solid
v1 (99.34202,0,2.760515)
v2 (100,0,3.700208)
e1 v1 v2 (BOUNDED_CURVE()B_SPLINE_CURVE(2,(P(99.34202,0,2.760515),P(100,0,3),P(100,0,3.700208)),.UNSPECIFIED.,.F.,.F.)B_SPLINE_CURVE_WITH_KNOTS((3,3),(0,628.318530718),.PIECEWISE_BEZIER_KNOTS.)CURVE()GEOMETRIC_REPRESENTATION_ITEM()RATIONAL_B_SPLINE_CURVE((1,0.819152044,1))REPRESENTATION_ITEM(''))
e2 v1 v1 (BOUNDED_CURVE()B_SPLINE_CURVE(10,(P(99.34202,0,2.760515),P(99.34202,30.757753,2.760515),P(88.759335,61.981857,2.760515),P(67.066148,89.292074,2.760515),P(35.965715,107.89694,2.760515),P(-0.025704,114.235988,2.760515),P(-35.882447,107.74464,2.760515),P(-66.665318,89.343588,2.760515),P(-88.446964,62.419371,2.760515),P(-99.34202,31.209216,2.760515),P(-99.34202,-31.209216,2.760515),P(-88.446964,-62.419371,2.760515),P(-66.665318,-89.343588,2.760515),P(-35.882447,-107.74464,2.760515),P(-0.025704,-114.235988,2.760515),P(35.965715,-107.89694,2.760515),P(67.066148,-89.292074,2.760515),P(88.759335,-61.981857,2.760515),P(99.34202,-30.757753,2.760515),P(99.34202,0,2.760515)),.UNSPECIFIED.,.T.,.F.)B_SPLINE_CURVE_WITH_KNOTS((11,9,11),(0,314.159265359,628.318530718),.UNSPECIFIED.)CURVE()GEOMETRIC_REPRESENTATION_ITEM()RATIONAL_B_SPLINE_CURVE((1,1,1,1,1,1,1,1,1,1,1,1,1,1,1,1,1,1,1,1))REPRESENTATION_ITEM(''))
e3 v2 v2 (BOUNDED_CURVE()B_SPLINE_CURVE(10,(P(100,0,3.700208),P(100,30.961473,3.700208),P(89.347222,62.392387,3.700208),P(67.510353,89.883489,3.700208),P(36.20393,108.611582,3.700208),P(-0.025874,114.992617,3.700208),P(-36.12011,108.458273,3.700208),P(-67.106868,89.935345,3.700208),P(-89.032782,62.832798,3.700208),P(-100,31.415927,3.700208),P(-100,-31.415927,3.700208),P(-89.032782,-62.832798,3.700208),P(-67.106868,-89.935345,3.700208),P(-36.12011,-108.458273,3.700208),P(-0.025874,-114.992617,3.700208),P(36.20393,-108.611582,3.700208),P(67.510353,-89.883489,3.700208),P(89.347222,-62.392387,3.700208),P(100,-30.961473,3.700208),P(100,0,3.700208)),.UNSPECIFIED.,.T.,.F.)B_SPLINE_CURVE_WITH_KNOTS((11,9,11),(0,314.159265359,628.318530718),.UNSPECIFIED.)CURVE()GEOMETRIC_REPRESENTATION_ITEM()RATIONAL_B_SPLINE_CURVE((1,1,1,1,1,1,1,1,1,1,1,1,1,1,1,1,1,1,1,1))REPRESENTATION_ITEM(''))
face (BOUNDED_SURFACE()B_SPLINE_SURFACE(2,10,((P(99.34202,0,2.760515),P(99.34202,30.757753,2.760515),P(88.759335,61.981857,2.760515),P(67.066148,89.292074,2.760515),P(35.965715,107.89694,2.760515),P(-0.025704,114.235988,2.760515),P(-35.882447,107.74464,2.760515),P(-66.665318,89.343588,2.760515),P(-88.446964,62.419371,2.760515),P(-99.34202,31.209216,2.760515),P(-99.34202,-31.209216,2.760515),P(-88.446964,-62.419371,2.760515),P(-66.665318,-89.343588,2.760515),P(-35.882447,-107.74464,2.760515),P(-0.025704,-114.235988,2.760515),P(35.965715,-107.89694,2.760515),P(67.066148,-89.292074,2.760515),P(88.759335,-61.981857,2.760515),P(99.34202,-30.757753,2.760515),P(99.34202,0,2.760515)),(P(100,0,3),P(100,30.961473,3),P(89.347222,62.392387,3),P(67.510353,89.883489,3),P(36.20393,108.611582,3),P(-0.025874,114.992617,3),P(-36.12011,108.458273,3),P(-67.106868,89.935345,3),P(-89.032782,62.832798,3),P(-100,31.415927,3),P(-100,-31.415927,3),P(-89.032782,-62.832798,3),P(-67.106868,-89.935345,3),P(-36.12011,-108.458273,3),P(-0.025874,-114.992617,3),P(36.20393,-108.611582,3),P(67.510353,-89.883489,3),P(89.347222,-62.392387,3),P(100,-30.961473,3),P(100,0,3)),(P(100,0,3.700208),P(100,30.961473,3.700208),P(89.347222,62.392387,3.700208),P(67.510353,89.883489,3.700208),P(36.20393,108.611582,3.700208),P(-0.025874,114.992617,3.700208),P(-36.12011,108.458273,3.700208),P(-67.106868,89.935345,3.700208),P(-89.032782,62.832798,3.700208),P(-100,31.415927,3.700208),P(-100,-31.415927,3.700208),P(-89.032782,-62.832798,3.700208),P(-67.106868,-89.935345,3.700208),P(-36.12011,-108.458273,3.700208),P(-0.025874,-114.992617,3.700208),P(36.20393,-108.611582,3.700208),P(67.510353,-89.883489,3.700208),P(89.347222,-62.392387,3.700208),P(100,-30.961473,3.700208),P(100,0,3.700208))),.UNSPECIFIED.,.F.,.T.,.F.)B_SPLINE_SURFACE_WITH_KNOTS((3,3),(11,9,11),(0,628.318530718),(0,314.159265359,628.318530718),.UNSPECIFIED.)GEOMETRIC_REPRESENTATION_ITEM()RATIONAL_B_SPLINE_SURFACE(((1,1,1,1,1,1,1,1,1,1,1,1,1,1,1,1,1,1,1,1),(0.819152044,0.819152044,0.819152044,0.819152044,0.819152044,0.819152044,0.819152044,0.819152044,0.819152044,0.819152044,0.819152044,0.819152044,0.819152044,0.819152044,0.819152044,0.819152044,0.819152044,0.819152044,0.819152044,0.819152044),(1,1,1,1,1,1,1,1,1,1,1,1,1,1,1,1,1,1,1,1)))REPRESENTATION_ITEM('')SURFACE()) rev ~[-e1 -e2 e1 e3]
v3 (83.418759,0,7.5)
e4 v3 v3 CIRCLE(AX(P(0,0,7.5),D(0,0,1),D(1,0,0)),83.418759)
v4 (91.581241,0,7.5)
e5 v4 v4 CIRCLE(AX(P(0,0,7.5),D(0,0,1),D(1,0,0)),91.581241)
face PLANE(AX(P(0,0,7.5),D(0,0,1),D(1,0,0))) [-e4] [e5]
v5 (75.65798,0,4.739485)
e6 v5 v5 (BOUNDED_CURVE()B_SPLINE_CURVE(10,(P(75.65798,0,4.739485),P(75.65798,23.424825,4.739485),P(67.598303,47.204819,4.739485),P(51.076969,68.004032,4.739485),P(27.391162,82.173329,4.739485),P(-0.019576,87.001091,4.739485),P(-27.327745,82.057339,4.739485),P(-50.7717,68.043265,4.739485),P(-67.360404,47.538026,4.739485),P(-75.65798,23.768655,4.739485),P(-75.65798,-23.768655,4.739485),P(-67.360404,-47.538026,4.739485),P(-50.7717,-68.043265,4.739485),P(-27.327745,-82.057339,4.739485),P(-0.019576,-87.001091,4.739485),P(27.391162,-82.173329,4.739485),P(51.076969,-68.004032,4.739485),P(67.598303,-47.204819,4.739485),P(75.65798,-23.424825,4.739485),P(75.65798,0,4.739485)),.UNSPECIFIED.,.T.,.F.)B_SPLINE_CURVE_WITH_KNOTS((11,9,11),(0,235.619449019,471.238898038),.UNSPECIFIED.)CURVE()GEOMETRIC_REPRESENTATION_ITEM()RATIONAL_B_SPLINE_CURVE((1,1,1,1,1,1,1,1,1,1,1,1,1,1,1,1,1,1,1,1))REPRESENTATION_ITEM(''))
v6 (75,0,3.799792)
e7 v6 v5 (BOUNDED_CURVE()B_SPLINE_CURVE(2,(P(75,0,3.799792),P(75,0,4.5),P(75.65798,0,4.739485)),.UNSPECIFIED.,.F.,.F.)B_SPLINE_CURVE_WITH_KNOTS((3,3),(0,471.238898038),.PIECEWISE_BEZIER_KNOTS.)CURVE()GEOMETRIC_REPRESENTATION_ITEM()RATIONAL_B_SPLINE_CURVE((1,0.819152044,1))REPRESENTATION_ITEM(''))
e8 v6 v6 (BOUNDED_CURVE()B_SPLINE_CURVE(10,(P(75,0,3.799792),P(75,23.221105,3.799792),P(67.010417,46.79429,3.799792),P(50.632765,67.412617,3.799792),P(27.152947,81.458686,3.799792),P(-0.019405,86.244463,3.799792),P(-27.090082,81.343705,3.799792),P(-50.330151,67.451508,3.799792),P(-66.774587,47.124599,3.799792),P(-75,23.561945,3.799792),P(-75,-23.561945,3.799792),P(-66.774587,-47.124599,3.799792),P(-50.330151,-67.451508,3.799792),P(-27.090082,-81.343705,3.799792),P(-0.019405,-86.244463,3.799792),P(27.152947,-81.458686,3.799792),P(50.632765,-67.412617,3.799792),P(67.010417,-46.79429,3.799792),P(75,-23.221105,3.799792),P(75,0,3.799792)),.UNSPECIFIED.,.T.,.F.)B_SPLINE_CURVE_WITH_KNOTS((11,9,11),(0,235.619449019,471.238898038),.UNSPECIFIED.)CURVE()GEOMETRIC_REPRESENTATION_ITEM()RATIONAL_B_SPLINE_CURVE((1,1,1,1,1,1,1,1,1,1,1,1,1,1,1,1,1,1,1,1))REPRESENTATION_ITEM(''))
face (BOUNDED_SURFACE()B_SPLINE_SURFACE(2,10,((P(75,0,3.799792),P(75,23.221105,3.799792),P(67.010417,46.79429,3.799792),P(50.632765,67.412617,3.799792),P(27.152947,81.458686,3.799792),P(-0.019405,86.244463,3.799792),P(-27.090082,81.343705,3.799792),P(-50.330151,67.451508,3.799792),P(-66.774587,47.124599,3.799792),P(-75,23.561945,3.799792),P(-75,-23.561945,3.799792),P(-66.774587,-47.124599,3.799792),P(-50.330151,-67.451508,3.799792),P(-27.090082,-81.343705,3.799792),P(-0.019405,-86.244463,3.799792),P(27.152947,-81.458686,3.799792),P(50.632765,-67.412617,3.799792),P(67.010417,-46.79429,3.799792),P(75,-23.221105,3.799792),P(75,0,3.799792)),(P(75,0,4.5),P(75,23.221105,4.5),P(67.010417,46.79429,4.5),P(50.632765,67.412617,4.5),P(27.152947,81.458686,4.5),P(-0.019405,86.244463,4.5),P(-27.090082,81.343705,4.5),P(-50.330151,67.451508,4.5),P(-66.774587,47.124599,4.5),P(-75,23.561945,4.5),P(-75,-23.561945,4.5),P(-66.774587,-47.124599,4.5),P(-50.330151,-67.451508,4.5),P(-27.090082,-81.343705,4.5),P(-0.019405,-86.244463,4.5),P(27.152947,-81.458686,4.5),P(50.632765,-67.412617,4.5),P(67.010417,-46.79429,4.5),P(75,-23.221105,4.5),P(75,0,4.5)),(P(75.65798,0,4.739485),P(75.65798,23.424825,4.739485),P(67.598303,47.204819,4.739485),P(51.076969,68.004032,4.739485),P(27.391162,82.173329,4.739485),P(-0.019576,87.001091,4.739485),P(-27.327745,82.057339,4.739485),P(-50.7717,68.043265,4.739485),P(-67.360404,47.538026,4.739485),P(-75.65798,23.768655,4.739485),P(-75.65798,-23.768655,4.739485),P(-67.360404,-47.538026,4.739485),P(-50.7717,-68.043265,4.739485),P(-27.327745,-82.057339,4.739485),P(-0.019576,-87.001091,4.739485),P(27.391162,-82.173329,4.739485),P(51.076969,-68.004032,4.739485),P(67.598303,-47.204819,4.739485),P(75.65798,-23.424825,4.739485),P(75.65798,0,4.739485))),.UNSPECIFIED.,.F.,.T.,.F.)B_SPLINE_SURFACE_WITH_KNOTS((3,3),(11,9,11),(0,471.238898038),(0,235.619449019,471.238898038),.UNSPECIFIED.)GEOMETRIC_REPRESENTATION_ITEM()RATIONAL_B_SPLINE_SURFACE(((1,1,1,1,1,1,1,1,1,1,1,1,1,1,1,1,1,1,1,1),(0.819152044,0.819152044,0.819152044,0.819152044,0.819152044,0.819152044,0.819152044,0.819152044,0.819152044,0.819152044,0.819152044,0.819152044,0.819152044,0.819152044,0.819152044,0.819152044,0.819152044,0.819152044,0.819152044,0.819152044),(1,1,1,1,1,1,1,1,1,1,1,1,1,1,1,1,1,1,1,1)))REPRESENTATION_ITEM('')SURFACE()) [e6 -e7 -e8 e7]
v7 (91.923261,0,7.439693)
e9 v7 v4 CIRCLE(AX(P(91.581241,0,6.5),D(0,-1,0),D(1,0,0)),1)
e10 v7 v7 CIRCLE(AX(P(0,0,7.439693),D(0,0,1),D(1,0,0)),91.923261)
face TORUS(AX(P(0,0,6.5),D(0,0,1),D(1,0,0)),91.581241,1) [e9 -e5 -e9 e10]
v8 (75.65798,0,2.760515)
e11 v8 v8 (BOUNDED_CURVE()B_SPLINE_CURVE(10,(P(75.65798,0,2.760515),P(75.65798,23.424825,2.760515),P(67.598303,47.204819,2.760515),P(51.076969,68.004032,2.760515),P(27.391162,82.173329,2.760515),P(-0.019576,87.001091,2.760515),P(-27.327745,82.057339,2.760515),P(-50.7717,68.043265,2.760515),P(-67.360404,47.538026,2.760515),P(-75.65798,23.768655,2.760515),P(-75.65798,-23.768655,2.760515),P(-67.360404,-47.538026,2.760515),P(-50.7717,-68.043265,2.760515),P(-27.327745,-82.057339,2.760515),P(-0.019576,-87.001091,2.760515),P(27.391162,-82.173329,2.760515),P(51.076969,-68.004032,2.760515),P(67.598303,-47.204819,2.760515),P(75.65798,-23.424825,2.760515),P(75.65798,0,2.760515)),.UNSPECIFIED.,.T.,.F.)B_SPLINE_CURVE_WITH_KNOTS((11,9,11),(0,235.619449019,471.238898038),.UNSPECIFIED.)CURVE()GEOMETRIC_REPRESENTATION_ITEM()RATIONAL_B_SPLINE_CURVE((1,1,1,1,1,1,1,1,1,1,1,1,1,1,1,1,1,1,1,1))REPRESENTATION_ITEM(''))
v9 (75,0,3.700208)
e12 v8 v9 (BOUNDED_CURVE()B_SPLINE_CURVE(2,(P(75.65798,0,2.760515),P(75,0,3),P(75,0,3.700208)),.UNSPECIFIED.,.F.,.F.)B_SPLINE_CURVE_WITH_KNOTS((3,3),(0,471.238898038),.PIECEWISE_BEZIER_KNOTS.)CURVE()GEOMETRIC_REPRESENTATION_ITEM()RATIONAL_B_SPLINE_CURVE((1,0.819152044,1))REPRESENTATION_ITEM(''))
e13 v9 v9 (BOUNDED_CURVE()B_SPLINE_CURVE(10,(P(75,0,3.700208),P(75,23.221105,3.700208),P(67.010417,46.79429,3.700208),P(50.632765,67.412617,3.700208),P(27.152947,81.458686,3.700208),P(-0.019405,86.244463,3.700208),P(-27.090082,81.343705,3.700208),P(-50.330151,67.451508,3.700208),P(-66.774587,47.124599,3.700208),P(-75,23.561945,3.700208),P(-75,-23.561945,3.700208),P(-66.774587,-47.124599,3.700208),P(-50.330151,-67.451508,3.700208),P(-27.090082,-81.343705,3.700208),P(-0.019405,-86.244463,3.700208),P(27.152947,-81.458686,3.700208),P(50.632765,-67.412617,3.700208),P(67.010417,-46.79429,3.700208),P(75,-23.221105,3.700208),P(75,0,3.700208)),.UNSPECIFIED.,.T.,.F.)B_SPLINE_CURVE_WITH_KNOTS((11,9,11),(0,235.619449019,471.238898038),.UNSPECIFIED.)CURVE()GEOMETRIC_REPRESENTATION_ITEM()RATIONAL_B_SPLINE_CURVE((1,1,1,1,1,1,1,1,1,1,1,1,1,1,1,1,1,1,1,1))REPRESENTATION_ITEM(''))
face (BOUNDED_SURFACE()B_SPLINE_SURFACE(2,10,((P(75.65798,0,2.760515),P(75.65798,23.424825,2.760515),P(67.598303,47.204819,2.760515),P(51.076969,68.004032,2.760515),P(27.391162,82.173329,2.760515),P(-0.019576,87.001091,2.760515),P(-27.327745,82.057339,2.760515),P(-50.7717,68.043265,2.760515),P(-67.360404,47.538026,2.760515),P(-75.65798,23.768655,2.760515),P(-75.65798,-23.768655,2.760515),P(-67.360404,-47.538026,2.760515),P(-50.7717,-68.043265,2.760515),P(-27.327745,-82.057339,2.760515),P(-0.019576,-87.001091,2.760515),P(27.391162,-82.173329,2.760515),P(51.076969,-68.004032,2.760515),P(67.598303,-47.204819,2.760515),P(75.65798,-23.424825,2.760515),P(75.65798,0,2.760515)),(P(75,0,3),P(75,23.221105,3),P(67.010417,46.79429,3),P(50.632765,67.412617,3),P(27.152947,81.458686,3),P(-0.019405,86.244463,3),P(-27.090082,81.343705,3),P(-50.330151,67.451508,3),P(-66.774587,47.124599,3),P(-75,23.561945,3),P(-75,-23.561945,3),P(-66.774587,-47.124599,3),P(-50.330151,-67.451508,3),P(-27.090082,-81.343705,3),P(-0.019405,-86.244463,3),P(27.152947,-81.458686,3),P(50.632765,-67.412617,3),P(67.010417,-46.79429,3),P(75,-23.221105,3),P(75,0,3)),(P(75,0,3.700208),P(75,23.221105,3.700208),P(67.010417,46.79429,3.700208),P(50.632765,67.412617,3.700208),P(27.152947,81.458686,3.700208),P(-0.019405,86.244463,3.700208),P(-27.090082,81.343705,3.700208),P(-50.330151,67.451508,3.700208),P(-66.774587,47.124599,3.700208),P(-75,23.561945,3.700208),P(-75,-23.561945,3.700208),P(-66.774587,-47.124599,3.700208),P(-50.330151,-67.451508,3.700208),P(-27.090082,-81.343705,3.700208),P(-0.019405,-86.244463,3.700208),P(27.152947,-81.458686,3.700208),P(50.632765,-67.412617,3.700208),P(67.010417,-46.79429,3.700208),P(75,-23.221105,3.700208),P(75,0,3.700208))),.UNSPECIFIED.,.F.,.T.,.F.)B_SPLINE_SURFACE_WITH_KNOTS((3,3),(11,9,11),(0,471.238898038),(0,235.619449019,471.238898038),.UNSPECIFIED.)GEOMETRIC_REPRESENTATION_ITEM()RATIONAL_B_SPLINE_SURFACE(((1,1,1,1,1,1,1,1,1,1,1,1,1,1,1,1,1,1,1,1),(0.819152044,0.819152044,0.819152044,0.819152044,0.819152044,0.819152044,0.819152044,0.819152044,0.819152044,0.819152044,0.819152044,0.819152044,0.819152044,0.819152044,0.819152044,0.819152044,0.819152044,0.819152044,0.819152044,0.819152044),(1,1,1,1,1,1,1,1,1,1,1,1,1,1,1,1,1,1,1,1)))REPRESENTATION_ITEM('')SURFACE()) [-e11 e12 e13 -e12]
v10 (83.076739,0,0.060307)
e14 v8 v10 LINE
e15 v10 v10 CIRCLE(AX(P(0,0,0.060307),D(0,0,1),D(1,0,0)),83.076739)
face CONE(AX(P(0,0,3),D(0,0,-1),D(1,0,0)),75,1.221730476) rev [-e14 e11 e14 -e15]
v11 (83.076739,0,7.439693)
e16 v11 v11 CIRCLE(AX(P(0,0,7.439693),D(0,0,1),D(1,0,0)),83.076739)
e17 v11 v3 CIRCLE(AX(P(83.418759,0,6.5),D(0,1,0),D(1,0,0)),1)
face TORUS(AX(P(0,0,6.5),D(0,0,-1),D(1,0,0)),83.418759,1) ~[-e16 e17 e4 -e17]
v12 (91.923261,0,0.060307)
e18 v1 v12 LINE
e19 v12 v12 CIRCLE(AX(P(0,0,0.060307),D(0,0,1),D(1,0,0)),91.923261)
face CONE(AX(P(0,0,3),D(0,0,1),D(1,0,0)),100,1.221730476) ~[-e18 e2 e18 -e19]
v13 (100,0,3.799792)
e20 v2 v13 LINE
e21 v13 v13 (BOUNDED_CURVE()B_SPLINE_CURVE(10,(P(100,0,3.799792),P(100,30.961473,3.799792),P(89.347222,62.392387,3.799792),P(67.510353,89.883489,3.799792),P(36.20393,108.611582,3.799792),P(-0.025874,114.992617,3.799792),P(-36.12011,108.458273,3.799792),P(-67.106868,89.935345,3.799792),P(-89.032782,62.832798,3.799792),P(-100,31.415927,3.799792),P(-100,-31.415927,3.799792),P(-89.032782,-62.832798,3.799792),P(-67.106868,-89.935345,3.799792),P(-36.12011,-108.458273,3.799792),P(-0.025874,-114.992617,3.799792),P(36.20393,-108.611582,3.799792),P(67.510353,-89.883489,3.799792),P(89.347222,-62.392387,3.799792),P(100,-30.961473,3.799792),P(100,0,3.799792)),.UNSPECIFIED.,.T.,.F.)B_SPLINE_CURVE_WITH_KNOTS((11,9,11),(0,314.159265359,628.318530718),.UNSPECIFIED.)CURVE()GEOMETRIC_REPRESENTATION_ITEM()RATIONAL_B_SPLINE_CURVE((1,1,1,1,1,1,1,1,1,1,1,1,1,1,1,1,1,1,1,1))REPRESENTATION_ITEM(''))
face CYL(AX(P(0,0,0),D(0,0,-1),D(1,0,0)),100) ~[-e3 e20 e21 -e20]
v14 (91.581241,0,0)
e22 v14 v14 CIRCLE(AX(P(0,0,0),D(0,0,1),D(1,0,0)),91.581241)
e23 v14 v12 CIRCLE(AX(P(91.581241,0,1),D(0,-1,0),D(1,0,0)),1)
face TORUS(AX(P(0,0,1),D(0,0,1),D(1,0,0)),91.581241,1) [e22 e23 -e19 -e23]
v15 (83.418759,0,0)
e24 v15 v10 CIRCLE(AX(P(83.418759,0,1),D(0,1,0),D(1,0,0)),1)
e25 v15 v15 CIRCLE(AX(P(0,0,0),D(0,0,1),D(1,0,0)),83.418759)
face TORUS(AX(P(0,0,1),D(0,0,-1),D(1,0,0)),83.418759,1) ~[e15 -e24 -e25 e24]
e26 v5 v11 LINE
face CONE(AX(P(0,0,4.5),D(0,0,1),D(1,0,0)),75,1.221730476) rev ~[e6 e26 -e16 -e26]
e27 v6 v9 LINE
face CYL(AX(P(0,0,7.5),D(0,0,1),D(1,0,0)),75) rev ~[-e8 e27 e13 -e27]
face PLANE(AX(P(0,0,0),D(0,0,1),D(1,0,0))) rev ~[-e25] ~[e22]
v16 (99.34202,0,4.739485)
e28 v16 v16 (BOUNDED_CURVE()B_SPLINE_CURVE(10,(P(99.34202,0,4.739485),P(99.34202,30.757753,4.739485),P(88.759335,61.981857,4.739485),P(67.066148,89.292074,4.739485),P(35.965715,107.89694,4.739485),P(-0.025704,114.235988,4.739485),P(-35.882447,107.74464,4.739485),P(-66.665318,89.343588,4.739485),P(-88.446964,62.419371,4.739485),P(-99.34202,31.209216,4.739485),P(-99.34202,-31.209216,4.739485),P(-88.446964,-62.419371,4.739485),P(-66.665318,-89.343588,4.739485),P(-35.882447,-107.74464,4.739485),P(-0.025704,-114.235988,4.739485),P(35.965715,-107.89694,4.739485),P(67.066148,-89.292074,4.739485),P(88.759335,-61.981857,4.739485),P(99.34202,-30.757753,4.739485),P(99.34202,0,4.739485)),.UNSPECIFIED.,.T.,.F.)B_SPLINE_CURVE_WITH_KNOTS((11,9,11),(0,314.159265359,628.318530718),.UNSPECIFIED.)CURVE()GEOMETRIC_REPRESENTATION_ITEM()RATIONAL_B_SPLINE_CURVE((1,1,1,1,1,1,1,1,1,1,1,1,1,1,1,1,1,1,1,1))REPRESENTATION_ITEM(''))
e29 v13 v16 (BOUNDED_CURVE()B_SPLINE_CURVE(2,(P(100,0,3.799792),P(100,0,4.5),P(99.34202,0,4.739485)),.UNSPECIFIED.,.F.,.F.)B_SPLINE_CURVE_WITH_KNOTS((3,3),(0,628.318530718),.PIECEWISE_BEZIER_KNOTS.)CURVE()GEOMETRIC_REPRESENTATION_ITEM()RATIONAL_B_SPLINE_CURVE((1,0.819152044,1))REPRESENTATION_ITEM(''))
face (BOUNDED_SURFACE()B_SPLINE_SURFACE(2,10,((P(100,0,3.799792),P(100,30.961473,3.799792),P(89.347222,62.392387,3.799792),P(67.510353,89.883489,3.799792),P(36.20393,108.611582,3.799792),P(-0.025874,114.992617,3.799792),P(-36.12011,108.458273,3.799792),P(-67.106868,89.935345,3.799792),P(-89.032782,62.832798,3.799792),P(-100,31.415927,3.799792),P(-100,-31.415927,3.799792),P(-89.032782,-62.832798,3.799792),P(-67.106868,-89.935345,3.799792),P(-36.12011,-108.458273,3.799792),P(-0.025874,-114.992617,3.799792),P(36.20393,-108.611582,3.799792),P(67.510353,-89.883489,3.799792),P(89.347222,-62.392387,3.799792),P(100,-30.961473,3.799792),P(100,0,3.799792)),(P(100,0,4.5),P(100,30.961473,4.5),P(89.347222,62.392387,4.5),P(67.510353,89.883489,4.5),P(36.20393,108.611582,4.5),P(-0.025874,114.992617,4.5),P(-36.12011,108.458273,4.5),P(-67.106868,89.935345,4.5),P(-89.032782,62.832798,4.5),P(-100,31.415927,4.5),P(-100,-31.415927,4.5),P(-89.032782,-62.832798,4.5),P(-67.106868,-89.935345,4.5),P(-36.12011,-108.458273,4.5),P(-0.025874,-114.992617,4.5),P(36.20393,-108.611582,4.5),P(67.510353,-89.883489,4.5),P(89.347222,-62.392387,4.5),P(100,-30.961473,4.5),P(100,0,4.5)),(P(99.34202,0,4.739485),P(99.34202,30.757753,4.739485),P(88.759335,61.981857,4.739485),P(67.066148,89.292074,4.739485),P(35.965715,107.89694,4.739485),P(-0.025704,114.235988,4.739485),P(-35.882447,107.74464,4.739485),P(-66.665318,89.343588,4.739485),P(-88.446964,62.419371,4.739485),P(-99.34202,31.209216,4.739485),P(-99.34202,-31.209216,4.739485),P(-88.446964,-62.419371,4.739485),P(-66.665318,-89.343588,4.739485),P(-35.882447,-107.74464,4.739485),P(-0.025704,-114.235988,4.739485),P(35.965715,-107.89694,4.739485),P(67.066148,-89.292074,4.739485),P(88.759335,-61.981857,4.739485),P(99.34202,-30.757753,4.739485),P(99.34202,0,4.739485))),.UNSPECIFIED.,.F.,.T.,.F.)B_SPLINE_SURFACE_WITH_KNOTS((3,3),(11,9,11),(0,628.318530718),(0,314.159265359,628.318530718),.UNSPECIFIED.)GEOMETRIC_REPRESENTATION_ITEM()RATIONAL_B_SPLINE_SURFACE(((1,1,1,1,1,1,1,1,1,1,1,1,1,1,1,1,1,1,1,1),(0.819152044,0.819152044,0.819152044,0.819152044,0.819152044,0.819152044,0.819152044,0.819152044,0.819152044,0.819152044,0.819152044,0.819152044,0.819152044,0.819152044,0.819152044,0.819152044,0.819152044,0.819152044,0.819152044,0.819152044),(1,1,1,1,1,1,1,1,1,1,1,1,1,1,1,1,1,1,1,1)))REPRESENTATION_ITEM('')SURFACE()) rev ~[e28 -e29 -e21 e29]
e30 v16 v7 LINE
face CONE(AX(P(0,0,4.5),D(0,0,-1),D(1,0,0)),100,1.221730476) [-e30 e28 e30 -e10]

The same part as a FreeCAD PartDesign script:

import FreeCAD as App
import Part
import Sketcher

V = App.Vector
Q = App.Units.Quantity


def edges_at(feature, points):
    """Names of the edges that pass closest to the given points."""
    edges = feature.Shape.Edges
    near = lambda p: min(range(len(edges)), key=lambda i: edges[i].distToShape(Part.Vertex(*p))[0])
    return sorted({f"Edge{near(p) + 1}" for p in points})

doc = App.newDocument("Part")
params = doc.addObject("Spreadsheet::Sheet", "Params")
for row, (alias, value) in enumerate([
    ("sketch1_diameter", "200 mm"),
    ("pad1_length", "7.5 mm"),
    ("sketch2_diameter", "150 mm"),
    ("pocket1_length", "25 mm"),
    ("chamfer_size", "3 mm"),
    ("chamfer_size2", "8.242432 mm"),
    ("chamfer2_size", "3 mm"),
    ("chamfer2_size2", "8.242432 mm"),
    ("fillet_radius", "1 mm"),
], start=1):
    params.set(f"A{row}", alias)
    params.set(f"B{row}", "=" + value)
    params.setAlias(f"B{row}", alias)

body = doc.addObject("PartDesign::Body", "Body")

# Sketch on XY plane
sketch1 = body.newObject("Sketcher::SketchObject", "Sketch")
sketch1.AttachmentSupport = (doc.getObject("XY_Plane"), [""])
sketch1.MapMode = "FlatFace"
sketch1.addGeometry(Part.Circle(V(0, 0, 0), V(0, 0, 1), 100), False)
sketch1.addConstraint([
    Sketcher.Constraint("Coincident", 0, 3, -1, 1),
    Sketcher.Constraint("Diameter", 0, Q("200 mm")),
])
sketch1.setExpression("Constraints[1]", "Params.sketch1_diameter")
pad1 = body.newObject("PartDesign::Pad", "Pad")
pad1.Profile = sketch1
pad1.setExpression("Length", "Params.pad1_length")

# Sketch on XY plane
sketch2 = body.newObject("Sketcher::SketchObject", "Sketch001")
sketch2.AttachmentSupport = (doc.getObject("XY_Plane"), [""])
sketch2.MapMode = "FlatFace"
sketch2.AttachmentOffset = App.Placement(V(0, 0, 7.5), App.Rotation())
sketch2.addGeometry(Part.Circle(V(0, 0, 0), V(0, 0, 1), 75), False)
sketch2.addConstraint([
    Sketcher.Constraint("Coincident", 0, 3, -1, 1),
    Sketcher.Constraint("Diameter", 0, Q("150 mm")),
])
sketch2.setExpression("Constraints[1]", "Params.sketch2_diameter")
pocket1 = body.newObject("PartDesign::Pocket", "Pocket")
pocket1.Profile = sketch2
pocket1.setExpression("Length", "Params.pocket1_length")
doc.recompute()

chamfer = body.newObject("PartDesign::Chamfer", "Chamfer")
chamfer.Base = (pocket1, edges_at(pocket1, [(-100, 0, 0), (-100, 0, 7.5)]))
chamfer.ChamferType = "Two distances"
chamfer.setExpression("Size", "Params.chamfer_size")
chamfer.setExpression("Size2", "Params.chamfer_size2")
doc.recompute()

chamfer2 = body.newObject("PartDesign::Chamfer", "Chamfer001")
chamfer2.Base = (chamfer, edges_at(chamfer, [(-75, 0, 0), (-75, 0, 7.5)]))
chamfer2.ChamferType = "Two distances"
chamfer2.setExpression("Size", "Params.chamfer2_size")
chamfer2.setExpression("Size2", "Params.chamfer2_size2")
chamfer2.FlipDirection = True
doc.recompute()

fillet = body.newObject("PartDesign::Fillet", "Fillet")
fillet.Base = (chamfer2, edges_at(chamfer2, [
    (-100, 0, 3),
    (-100, 0, 4.5),
    (-91.758, 0, 0),
    (-83.242, 0, 0),
    (-75, 0, 3),
    (-75, 0, 4.5),
    (-91.758, 0, 7.5),
    (-83.242, 0, 7.5),
]))
fillet.setExpression("Radius", "Params.fillet_radius")

doc.recompute()
